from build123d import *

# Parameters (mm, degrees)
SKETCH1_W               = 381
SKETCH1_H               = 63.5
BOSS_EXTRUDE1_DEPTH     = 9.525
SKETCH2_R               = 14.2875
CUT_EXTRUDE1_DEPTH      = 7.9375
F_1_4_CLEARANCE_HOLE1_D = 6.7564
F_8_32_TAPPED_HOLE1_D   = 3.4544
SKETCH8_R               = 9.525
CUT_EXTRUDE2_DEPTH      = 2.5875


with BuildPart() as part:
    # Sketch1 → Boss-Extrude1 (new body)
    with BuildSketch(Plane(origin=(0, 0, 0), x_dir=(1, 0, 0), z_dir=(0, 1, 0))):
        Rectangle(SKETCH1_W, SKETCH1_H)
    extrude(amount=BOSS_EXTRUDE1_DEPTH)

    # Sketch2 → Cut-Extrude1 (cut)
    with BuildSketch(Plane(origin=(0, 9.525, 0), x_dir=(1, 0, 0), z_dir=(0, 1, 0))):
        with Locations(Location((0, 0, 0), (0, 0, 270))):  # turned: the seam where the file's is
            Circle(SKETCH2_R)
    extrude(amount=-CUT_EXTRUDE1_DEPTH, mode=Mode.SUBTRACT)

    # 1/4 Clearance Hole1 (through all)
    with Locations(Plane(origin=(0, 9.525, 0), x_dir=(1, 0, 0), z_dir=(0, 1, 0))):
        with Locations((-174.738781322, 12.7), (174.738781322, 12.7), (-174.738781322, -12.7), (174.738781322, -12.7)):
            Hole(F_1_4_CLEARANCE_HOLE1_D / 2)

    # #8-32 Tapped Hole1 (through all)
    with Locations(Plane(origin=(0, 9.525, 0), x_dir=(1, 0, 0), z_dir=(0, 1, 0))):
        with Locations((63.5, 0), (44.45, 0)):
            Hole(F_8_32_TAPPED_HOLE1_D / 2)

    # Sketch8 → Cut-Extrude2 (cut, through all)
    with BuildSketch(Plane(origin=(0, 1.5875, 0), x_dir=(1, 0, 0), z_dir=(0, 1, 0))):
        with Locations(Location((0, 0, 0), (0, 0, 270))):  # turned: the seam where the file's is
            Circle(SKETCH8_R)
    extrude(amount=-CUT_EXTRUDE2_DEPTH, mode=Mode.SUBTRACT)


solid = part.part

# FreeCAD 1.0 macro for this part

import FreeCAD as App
import Part
import Sketcher
Q = App.Units.Quantity


def add_polygon(sketch, points):
    """Adds a closed chain of lines whose ends are joined by coincident constraints."""
    first, n = sketch.GeometryCount, len(points)
    for a, b in zip(points, points[1:] + points[:1]):
        sketch.addGeometry(Part.LineSegment(App.Vector(*a, 0), App.Vector(*b, 0)), False)
    for i in range(n):
        sketch.addConstraint(Sketcher.Constraint("Coincident", first + i, 2, first + (i + 1) % n, 1))

doc = App.newDocument("Part")
body = doc.addObject("PartDesign::Body", "Body")

# Sketch on XZ plane
sketch1 = doc.addObject("Sketcher::SketchObject", "Sketch")
body.addObject(sketch1)
sketch1.AttachmentSupport = (doc.XZ_Plane, [""])
sketch1.MapMode = "FlatFace"
add_polygon(sketch1, [(-190, -32), (-190, 32), (190, 32), (190, -32)])  # lines 0-3
sketch1.addConstraint(Sketcher.Constraint("Vertical", 0))
sketch1.addConstraint(Sketcher.Constraint("Horizontal", 1))
sketch1.addConstraint(Sketcher.Constraint("Vertical", 2))
sketch1.addConstraint(Sketcher.Constraint("Horizontal", 3))
sketch1.addConstraint(Sketcher.Constraint("Symmetric", 0, 2, 2, 2, -1, 1))
sketch1.addConstraint(Sketcher.Constraint("DistanceX", 1, 1, 1, 2, Q("15 in")))
sketch1.addConstraint(Sketcher.Constraint("DistanceY", 0, 1, 0, 2, Q("2.5 in")))
pad1 = doc.addObject("PartDesign::Pad", "Pad")
body.addObject(pad1)
pad1.Profile = sketch1
pad1.Length = Q("0.375 in")
pad1.Reversed = True

# Sketch on XZ plane
sketch2 = doc.addObject("Sketcher::SketchObject", "Sketch001")
body.addObject(sketch2)
sketch2.AttachmentSupport = (doc.XZ_Plane, [""])
sketch2.MapMode = "FlatFace"
sketch2.AttachmentOffset = App.Placement(App.Vector(0, 0, -0.375 * 25.4), App.Rotation())
sketch2.addGeometry(Part.Circle(App.Vector(0, 0, 0), App.Vector(0, 0, 1), 14), False)
sketch2.addConstraint(Sketcher.Constraint("Coincident", 0, 3, -1, 1))
sketch2.addConstraint(Sketcher.Constraint("Diameter", 0, Q("1.125 in")))
pocket1 = doc.addObject("PartDesign::Pocket", "Pocket")
body.addObject(pocket1)
pocket1.Profile = sketch2
pocket1.Length = Q("0.3125 in")
pocket1.Reversed = True

# Sketch on XZ plane
sketch3 = doc.addObject("Sketcher::SketchObject", "Sketch002")
body.addObject(sketch3)
sketch3.AttachmentSupport = (doc.XZ_Plane, [""])
sketch3.MapMode = "FlatFace"
sketch3.AttachmentOffset = App.Placement(App.Vector(0, 0, -0.375 * 25.4), App.Rotation())
sketch3.addGeometry(Part.Circle(App.Vector(-174.7, -12.7, 0), App.Vector(0, 0, 1), 3.4), False)
sketch3.addGeometry(Part.Circle(App.Vector(174.7, -12.7, 0), App.Vector(0, 0, 1), 3.4), False)
sketch3.addGeometry(Part.Circle(App.Vector(-174.7, 12.7, 0), App.Vector(0, 0, 1), 3.4), False)
sketch3.addGeometry(Part.Circle(App.Vector(174.7, 12.7, 0), App.Vector(0, 0, 1), 3.4), False)
sketch3.addConstraint(Sketcher.Constraint("Equal", 0, 1))
sketch3.addConstraint(Sketcher.Constraint("Equal", 1, 2))
sketch3.addConstraint(Sketcher.Constraint("Equal", 2, 3))
sketch3.addConstraint(Sketcher.Constraint("Symmetric", 1, 3, 2, 3, -1, 1))
sketch3.addConstraint(Sketcher.Constraint("Symmetric", 0, 3, 3, 3, -1, 1))
sketch3.addConstraint(Sketcher.Constraint("Symmetric", 0, 3, 1, 3, -2))
sketch3.addConstraint(Sketcher.Constraint("Diameter", 0, Q("0.266 in")))
sketch3.addConstraint(Sketcher.Constraint("DistanceY", 0, 3, 2, 3, Q("1 in")))
sketch3.addConstraint(Sketcher.Constraint("DistanceX", 0, 3, -1, 1, 174.738781))
doc.recompute()
hole = doc.addObject("PartDesign::Hole", "Hole")
body.addObject(hole)
hole.Profile = sketch3
hole.ThreadType = "None"
hole.Diameter = Q("0.266 in")
hole.DepthType = "ThroughAll"
hole.Reversed = True

# Sketch on XZ plane
sketch4 = doc.addObject("Sketcher::SketchObject", "Sketch003")
body.addObject(sketch4)
sketch4.AttachmentSupport = (doc.XZ_Plane, [""])
sketch4.MapMode = "FlatFace"
sketch4.AttachmentOffset = App.Placement(App.Vector(0, 0, -0.375 * 25.4), App.Rotation())
sketch4.addGeometry(Part.Circle(App.Vector(63.5, 0, 0), App.Vector(0, 0, 1), 1.7), False)
sketch4.addGeometry(Part.Circle(App.Vector(44.5, 0, 0), App.Vector(0, 0, 1), 1.7), False)
sketch4.addConstraint(Sketcher.Constraint("Equal", 0, 1))
sketch4.addConstraint(Sketcher.Constraint("PointOnObject", 0, 3, -1))
sketch4.addConstraint(Sketcher.Constraint("PointOnObject", 1, 3, -1))
sketch4.addConstraint(Sketcher.Constraint("Diameter", 0, Q("0.136 in")))
sketch4.addConstraint(Sketcher.Constraint("DistanceX", -1, 1, 0, 3, Q("2.5 in")))
sketch4.addConstraint(Sketcher.Constraint("DistanceX", -1, 1, 1, 3, Q("1.75 in")))
doc.recompute()
hole2 = doc.addObject("PartDesign::Hole", "Hole001")
body.addObject(hole2)
hole2.Profile = sketch4
hole2.ThreadType = "None"
hole2.Diameter = Q("0.136 in")
hole2.DepthType = "ThroughAll"
hole2.Reversed = True

# Sketch on XZ plane
sketch5 = doc.addObject("Sketcher::SketchObject", "Sketch004")
body.addObject(sketch5)
sketch5.AttachmentSupport = (doc.XZ_Plane, [""])
sketch5.MapMode = "FlatFace"
sketch5.AttachmentOffset = App.Placement(App.Vector(0, 0, -0.0625 * 25.4), App.Rotation())
sketch5.addGeometry(Part.Circle(App.Vector(0, 0, 0), App.Vector(0, 0, 1), 10), False)
sketch5.addConstraint(Sketcher.Constraint("Coincident", 0, 3, -1, 1))
sketch5.addConstraint(Sketcher.Constraint("Diameter", 0, Q("0.75 in")))
pocket2 = doc.addObject("PartDesign::Pocket", "Pocket001")
body.addObject(pocket2)
pocket2.Profile = sketch5
pocket2.Type = "ThroughAll"
pocket2.Reversed = True

doc.recompute()
